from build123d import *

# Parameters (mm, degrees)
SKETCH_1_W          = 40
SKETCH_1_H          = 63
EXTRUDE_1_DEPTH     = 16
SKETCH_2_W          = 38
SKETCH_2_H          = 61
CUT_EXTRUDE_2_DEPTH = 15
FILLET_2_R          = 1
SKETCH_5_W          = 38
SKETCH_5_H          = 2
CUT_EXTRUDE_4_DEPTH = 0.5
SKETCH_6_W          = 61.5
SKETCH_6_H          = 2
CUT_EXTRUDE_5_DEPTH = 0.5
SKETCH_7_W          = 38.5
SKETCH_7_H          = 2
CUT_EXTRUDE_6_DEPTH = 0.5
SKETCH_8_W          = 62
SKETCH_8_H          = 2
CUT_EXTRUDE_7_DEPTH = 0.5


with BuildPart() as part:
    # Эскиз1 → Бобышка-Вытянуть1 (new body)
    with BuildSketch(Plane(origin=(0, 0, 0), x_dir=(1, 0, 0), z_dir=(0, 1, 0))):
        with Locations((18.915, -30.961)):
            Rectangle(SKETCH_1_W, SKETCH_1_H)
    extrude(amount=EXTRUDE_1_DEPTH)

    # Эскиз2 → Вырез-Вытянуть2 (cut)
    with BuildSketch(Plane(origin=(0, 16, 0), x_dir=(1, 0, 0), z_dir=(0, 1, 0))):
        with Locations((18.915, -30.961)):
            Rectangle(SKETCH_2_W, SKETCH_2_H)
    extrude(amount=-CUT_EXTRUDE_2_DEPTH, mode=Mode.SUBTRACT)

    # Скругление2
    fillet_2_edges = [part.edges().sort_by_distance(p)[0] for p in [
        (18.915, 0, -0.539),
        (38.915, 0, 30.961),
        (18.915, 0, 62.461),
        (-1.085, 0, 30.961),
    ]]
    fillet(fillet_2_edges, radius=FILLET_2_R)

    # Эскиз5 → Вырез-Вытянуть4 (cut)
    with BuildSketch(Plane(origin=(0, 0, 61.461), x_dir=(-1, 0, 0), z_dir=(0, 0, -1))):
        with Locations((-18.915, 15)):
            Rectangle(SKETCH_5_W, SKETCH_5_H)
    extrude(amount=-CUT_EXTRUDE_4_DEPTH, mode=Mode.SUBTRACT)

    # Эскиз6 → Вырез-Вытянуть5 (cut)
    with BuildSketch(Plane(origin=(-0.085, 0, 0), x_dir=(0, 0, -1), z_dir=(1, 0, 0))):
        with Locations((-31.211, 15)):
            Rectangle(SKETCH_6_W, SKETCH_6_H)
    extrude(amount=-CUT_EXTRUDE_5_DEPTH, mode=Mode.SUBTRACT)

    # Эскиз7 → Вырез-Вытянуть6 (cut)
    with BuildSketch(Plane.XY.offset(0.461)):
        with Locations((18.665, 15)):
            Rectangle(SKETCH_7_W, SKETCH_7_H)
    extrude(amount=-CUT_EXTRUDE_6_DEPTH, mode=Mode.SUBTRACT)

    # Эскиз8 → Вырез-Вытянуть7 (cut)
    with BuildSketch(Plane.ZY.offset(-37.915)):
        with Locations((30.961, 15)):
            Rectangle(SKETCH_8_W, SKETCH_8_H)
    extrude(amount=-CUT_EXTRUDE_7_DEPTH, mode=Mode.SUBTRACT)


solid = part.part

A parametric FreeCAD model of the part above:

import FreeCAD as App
import Part
import Sketcher
Q = App.Units.Quantity


def edges_at(feature, points):
    """Names of the edges that pass closest to the given points."""
    edges = feature.Shape.Edges
    near = lambda p: min(range(len(edges)), key=lambda i: edges[i].distToShape(Part.Vertex(*p))[0])
    return sorted({f"Edge{near(p) + 1}" for p in points})

doc = App.newDocument("Part")
body = doc.addObject("PartDesign::Body", "Body")

sketch1 = doc.addObject("Sketcher::SketchObject", "Sketch")
body.addObject(sketch1)
sketch1.AttachmentSupport = (doc.XZ_Plane, [""])
sketch1.MapMode = "FlatFace"
sketch1.addGeometry(Part.LineSegment(App.Vector(-1, -1, 0), App.Vector(-1, 62, 0)), False)
sketch1.addGeometry(Part.LineSegment(App.Vector(-1, 62, 0), App.Vector(39, 62, 0)), False)
sketch1.addGeometry(Part.LineSegment(App.Vector(39, 62, 0), App.Vector(39, -1, 0)), False)
sketch1.addGeometry(Part.LineSegment(App.Vector(39, -1, 0), App.Vector(-1, -1, 0)), False)
sketch1.addConstraint(Sketcher.Constraint("Coincident", 0, 2, 1, 1))
sketch1.addConstraint(Sketcher.Constraint("Coincident", 1, 2, 2, 1))
sketch1.addConstraint(Sketcher.Constraint("Coincident", 2, 2, 3, 1))
sketch1.addConstraint(Sketcher.Constraint("Coincident", 3, 2, 0, 1))
sketch1.addConstraint(Sketcher.Constraint("Vertical", 0))
sketch1.addConstraint(Sketcher.Constraint("Horizontal", 1))
sketch1.addConstraint(Sketcher.Constraint("Vertical", 2))
sketch1.addConstraint(Sketcher.Constraint("Horizontal", 3))
sketch1.addConstraint(Sketcher.Constraint("DistanceX", 1, 1, 1, 2, Q("40 mm")))
sketch1.addConstraint(Sketcher.Constraint("DistanceY", 0, 1, 0, 2, Q("63 mm")))
sketch1.addConstraint(Sketcher.Constraint("DistanceX", 0, 2, -1, 1, Q("1.085 mm")))
sketch1.addConstraint(Sketcher.Constraint("DistanceY", -1, 1, 0, 2, Q("62.461 mm")))
pad1 = doc.addObject("PartDesign::Pad", "Pad")
body.addObject(pad1)
pad1.Profile = sketch1
pad1.Length = 16
pad1.Reversed = True

sketch2 = doc.addObject("Sketcher::SketchObject", "Sketch001")
body.addObject(sketch2)
sketch2.AttachmentSupport = (doc.XZ_Plane, [""])
sketch2.MapMode = "FlatFace"
sketch2.AttachmentOffset = App.Placement(App.Vector(0, 0, -16), App.Rotation())
sketch2.addGeometry(Part.LineSegment(App.Vector(0, 0, 0), App.Vector(0, 61, 0)), False)
sketch2.addGeometry(Part.LineSegment(App.Vector(0, 61, 0), App.Vector(38, 61, 0)), False)
sketch2.addGeometry(Part.LineSegment(App.Vector(38, 61, 0), App.Vector(38, 0, 0)), False)
sketch2.addGeometry(Part.LineSegment(App.Vector(38, 0, 0), App.Vector(0, 0, 0)), False)
sketch2.addConstraint(Sketcher.Constraint("Coincident", 0, 2, 1, 1))
sketch2.addConstraint(Sketcher.Constraint("Coincident", 1, 2, 2, 1))
sketch2.addConstraint(Sketcher.Constraint("Coincident", 2, 2, 3, 1))
sketch2.addConstraint(Sketcher.Constraint("Coincident", 3, 2, 0, 1))
sketch2.addConstraint(Sketcher.Constraint("Vertical", 0))
sketch2.addConstraint(Sketcher.Constraint("Horizontal", 1))
sketch2.addConstraint(Sketcher.Constraint("Vertical", 2))
sketch2.addConstraint(Sketcher.Constraint("Horizontal", 3))
sketch2.addConstraint(Sketcher.Constraint("DistanceX", 1, 1, 1, 2, Q("38 mm")))
sketch2.addConstraint(Sketcher.Constraint("DistanceY", 0, 1, 0, 2, Q("61 mm")))
sketch2.addConstraint(Sketcher.Constraint("DistanceX", 0, 2, -1, 1, Q("0.085 mm")))
sketch2.addConstraint(Sketcher.Constraint("DistanceY", -1, 1, 0, 2, Q("61.461 mm")))
pocket1 = doc.addObject("PartDesign::Pocket", "Pocket")
body.addObject(pocket1)
pocket1.Profile = sketch2
pocket1.Length = 15
pocket1.Reversed = True
doc.recompute()

fillet = doc.addObject("PartDesign::Fillet", "Fillet")
body.addObject(fillet)
fillet.Base = (pocket1, edges_at(pocket1, [
    (18.915, 0, -0.539),
    (38.915, 0, 30.961),
    (18.915, 0, 62.461),
    (-1.085, 0, 30.961),
]))
fillet.Radius = 1

sketch3 = doc.addObject("Sketcher::SketchObject", "Sketch002")
body.addObject(sketch3)
sketch3.AttachmentSupport = (doc.XY_Plane, [""])
sketch3.MapMode = "FlatFace"
sketch3.AttachmentOffset = App.Placement(App.Vector(0, 0, 61.461), App.Rotation())
sketch3.addGeometry(Part.LineSegment(App.Vector(37.9, 16, 0), App.Vector(37.9, 14, 0)), False)
sketch3.addGeometry(Part.LineSegment(App.Vector(37.9, 14, 0), App.Vector(-0.1, 14, 0)), False)
sketch3.addGeometry(Part.LineSegment(App.Vector(-0.1, 14, 0), App.Vector(-0.1, 16, 0)), False)
sketch3.addGeometry(Part.LineSegment(App.Vector(-0.1, 16, 0), App.Vector(37.9, 16, 0)), False)
sketch3.addConstraint(Sketcher.Constraint("Coincident", 0, 2, 1, 1))
sketch3.addConstraint(Sketcher.Constraint("Coincident", 1, 2, 2, 1))
sketch3.addConstraint(Sketcher.Constraint("Coincident", 2, 2, 3, 1))
sketch3.addConstraint(Sketcher.Constraint("Coincident", 3, 2, 0, 1))
sketch3.addConstraint(Sketcher.Constraint("Vertical", 0))
sketch3.addConstraint(Sketcher.Constraint("Horizontal", 1))
sketch3.addConstraint(Sketcher.Constraint("Vertical", 2))
sketch3.addConstraint(Sketcher.Constraint("Horizontal", 3))
sketch3.addConstraint(Sketcher.Constraint("DistanceX", 1, 2, 1, 1, Q("38 mm")))
sketch3.addConstraint(Sketcher.Constraint("DistanceY", 0, 2, 0, 1, Q("2 mm")))
sketch3.addConstraint(Sketcher.Constraint("DistanceY", -1, 1, 0, 2, Q("14 mm")))
sketch3.addConstraint(Sketcher.Constraint("DistanceX", -1, 1, 0, 2, Q("37.915 mm")))
pocket2 = doc.addObject("PartDesign::Pocket", "Pocket001")
body.addObject(pocket2)
pocket2.Profile = sketch3
pocket2.Length = 0.5
pocket2.Reversed = True

sketch4 = doc.addObject("Sketcher::SketchObject", "Sketch003")
body.addObject(sketch4)
sketch4.AttachmentSupport = (doc.YZ_Plane, [""])
sketch4.MapMode = "FlatFace"
sketch4.AttachmentOffset = App.Placement(App.Vector(0, 0, -0.085), App.Rotation())
sketch4.addGeometry(Part.LineSegment(App.Vector(16, 62, 0), App.Vector(14, 62, 0)), False)
sketch4.addGeometry(Part.LineSegment(App.Vector(14, 62, 0), App.Vector(14, 0.5, 0)), False)
sketch4.addGeometry(Part.LineSegment(App.Vector(14, 0.5, 0), App.Vector(16, 0.5, 0)), False)
sketch4.addGeometry(Part.LineSegment(App.Vector(16, 0.5, 0), App.Vector(16, 62, 0)), False)
sketch4.addConstraint(Sketcher.Constraint("Coincident", 0, 2, 1, 1))
sketch4.addConstraint(Sketcher.Constraint("Coincident", 1, 2, 2, 1))
sketch4.addConstraint(Sketcher.Constraint("Coincident", 2, 2, 3, 1))
sketch4.addConstraint(Sketcher.Constraint("Coincident", 3, 2, 0, 1))
sketch4.addConstraint(Sketcher.Constraint("Horizontal", 0))
sketch4.addConstraint(Sketcher.Constraint("Vertical", 1))
sketch4.addConstraint(Sketcher.Constraint("Horizontal", 2))
sketch4.addConstraint(Sketcher.Constraint("Vertical", 3))
sketch4.addConstraint(Sketcher.Constraint("DistanceX", 0, 2, 0, 1, Q("2 mm")))
sketch4.addConstraint(Sketcher.Constraint("DistanceY", 1, 2, 1, 1, Q("61.5 mm")))
sketch4.addConstraint(Sketcher.Constraint("DistanceX", -1, 1, 0, 2, Q("14 mm")))
sketch4.addConstraint(Sketcher.Constraint("DistanceY", -1, 1, 0, 2, Q("61.961 mm")))
pocket3 = doc.addObject("PartDesign::Pocket", "Pocket002")
body.addObject(pocket3)
pocket3.Profile = sketch4
pocket3.Length = 0.5

sketch5 = doc.addObject("Sketcher::SketchObject", "Sketch004")
body.addObject(sketch5)
sketch5.AttachmentSupport = (doc.XY_Plane, [""])
sketch5.MapMode = "FlatFace"
sketch5.AttachmentOffset = App.Placement(App.Vector(0, 0, 0.461), App.Rotation())
sketch5.addGeometry(Part.LineSegment(App.Vector(-0.6, 16, 0), App.Vector(-0.6, 14, 0)), False)
sketch5.addGeometry(Part.LineSegment(App.Vector(-0.6, 14, 0), App.Vector(37.9, 14, 0)), False)
sketch5.addGeometry(Part.LineSegment(App.Vector(37.9, 14, 0), App.Vector(37.9, 16, 0)), False)
sketch5.addGeometry(Part.LineSegment(App.Vector(37.9, 16, 0), App.Vector(-0.6, 16, 0)), False)
sketch5.addConstraint(Sketcher.Constraint("Coincident", 0, 2, 1, 1))
sketch5.addConstraint(Sketcher.Constraint("Coincident", 1, 2, 2, 1))
sketch5.addConstraint(Sketcher.Constraint("Coincident", 2, 2, 3, 1))
sketch5.addConstraint(Sketcher.Constraint("Coincident", 3, 2, 0, 1))
sketch5.addConstraint(Sketcher.Constraint("Vertical", 0))
sketch5.addConstraint(Sketcher.Constraint("Horizontal", 1))
sketch5.addConstraint(Sketcher.Constraint("Vertical", 2))
sketch5.addConstraint(Sketcher.Constraint("Horizontal", 3))
sketch5.addConstraint(Sketcher.Constraint("DistanceY", 0, 2, 0, 1, Q("2 mm")))
sketch5.addConstraint(Sketcher.Constraint("DistanceX", 1, 1, 1, 2, Q("38.5 mm")))
sketch5.addConstraint(Sketcher.Constraint("DistanceY", -1, 1, 0, 2, Q("14 mm")))
sketch5.addConstraint(Sketcher.Constraint("DistanceX", 0, 2, -1, 1, Q("0.585 mm")))
pocket4 = doc.addObject("PartDesign::Pocket", "Pocket003")
body.addObject(pocket4)
pocket4.Profile = sketch5
pocket4.Length = 0.5

sketch6 = doc.addObject("Sketcher::SketchObject", "Sketch005")
body.addObject(sketch6)
sketch6.AttachmentSupport = (doc.YZ_Plane, [""])
sketch6.MapMode = "FlatFace"
sketch6.AttachmentOffset = App.Placement(App.Vector(0, 0, 37.915), App.Rotation())
sketch6.addGeometry(Part.LineSegment(App.Vector(16, 0, 0), App.Vector(14, 0, 0)), False)
sketch6.addGeometry(Part.LineSegment(App.Vector(14, 0, 0), App.Vector(14, 62, 0)), False)
sketch6.addGeometry(Part.LineSegment(App.Vector(14, 62, 0), App.Vector(16, 62, 0)), False)
sketch6.addGeometry(Part.LineSegment(App.Vector(16, 62, 0), App.Vector(16, 0, 0)), False)
sketch6.addConstraint(Sketcher.Constraint("Coincident", 0, 2, 1, 1))
sketch6.addConstraint(Sketcher.Constraint("Coincident", 1, 2, 2, 1))
sketch6.addConstraint(Sketcher.Constraint("Coincident", 2, 2, 3, 1))
sketch6.addConstraint(Sketcher.Constraint("Coincident", 3, 2, 0, 1))
sketch6.addConstraint(Sketcher.Constraint("Horizontal", 0))
sketch6.addConstraint(Sketcher.Constraint("Vertical", 1))
sketch6.addConstraint(Sketcher.Constraint("Horizontal", 2))
sketch6.addConstraint(Sketcher.Constraint("Vertical", 3))
sketch6.addConstraint(Sketcher.Constraint("DistanceX", 0, 2, 0, 1, Q("2 mm")))
sketch6.addConstraint(Sketcher.Constraint("DistanceY", 1, 1, 1, 2, Q("62 mm")))
sketch6.addConstraint(Sketcher.Constraint("DistanceX", -1, 1, 0, 2, Q("14 mm")))
sketch6.addConstraint(Sketcher.Constraint("DistanceY", 0, 2, -1, 1, Q("0.039 mm")))
pocket5 = doc.addObject("PartDesign::Pocket", "Pocket004")
body.addObject(pocket5)
pocket5.Profile = sketch6
pocket5.Length = 0.5
pocket5.Reversed = True

doc.recompute()
